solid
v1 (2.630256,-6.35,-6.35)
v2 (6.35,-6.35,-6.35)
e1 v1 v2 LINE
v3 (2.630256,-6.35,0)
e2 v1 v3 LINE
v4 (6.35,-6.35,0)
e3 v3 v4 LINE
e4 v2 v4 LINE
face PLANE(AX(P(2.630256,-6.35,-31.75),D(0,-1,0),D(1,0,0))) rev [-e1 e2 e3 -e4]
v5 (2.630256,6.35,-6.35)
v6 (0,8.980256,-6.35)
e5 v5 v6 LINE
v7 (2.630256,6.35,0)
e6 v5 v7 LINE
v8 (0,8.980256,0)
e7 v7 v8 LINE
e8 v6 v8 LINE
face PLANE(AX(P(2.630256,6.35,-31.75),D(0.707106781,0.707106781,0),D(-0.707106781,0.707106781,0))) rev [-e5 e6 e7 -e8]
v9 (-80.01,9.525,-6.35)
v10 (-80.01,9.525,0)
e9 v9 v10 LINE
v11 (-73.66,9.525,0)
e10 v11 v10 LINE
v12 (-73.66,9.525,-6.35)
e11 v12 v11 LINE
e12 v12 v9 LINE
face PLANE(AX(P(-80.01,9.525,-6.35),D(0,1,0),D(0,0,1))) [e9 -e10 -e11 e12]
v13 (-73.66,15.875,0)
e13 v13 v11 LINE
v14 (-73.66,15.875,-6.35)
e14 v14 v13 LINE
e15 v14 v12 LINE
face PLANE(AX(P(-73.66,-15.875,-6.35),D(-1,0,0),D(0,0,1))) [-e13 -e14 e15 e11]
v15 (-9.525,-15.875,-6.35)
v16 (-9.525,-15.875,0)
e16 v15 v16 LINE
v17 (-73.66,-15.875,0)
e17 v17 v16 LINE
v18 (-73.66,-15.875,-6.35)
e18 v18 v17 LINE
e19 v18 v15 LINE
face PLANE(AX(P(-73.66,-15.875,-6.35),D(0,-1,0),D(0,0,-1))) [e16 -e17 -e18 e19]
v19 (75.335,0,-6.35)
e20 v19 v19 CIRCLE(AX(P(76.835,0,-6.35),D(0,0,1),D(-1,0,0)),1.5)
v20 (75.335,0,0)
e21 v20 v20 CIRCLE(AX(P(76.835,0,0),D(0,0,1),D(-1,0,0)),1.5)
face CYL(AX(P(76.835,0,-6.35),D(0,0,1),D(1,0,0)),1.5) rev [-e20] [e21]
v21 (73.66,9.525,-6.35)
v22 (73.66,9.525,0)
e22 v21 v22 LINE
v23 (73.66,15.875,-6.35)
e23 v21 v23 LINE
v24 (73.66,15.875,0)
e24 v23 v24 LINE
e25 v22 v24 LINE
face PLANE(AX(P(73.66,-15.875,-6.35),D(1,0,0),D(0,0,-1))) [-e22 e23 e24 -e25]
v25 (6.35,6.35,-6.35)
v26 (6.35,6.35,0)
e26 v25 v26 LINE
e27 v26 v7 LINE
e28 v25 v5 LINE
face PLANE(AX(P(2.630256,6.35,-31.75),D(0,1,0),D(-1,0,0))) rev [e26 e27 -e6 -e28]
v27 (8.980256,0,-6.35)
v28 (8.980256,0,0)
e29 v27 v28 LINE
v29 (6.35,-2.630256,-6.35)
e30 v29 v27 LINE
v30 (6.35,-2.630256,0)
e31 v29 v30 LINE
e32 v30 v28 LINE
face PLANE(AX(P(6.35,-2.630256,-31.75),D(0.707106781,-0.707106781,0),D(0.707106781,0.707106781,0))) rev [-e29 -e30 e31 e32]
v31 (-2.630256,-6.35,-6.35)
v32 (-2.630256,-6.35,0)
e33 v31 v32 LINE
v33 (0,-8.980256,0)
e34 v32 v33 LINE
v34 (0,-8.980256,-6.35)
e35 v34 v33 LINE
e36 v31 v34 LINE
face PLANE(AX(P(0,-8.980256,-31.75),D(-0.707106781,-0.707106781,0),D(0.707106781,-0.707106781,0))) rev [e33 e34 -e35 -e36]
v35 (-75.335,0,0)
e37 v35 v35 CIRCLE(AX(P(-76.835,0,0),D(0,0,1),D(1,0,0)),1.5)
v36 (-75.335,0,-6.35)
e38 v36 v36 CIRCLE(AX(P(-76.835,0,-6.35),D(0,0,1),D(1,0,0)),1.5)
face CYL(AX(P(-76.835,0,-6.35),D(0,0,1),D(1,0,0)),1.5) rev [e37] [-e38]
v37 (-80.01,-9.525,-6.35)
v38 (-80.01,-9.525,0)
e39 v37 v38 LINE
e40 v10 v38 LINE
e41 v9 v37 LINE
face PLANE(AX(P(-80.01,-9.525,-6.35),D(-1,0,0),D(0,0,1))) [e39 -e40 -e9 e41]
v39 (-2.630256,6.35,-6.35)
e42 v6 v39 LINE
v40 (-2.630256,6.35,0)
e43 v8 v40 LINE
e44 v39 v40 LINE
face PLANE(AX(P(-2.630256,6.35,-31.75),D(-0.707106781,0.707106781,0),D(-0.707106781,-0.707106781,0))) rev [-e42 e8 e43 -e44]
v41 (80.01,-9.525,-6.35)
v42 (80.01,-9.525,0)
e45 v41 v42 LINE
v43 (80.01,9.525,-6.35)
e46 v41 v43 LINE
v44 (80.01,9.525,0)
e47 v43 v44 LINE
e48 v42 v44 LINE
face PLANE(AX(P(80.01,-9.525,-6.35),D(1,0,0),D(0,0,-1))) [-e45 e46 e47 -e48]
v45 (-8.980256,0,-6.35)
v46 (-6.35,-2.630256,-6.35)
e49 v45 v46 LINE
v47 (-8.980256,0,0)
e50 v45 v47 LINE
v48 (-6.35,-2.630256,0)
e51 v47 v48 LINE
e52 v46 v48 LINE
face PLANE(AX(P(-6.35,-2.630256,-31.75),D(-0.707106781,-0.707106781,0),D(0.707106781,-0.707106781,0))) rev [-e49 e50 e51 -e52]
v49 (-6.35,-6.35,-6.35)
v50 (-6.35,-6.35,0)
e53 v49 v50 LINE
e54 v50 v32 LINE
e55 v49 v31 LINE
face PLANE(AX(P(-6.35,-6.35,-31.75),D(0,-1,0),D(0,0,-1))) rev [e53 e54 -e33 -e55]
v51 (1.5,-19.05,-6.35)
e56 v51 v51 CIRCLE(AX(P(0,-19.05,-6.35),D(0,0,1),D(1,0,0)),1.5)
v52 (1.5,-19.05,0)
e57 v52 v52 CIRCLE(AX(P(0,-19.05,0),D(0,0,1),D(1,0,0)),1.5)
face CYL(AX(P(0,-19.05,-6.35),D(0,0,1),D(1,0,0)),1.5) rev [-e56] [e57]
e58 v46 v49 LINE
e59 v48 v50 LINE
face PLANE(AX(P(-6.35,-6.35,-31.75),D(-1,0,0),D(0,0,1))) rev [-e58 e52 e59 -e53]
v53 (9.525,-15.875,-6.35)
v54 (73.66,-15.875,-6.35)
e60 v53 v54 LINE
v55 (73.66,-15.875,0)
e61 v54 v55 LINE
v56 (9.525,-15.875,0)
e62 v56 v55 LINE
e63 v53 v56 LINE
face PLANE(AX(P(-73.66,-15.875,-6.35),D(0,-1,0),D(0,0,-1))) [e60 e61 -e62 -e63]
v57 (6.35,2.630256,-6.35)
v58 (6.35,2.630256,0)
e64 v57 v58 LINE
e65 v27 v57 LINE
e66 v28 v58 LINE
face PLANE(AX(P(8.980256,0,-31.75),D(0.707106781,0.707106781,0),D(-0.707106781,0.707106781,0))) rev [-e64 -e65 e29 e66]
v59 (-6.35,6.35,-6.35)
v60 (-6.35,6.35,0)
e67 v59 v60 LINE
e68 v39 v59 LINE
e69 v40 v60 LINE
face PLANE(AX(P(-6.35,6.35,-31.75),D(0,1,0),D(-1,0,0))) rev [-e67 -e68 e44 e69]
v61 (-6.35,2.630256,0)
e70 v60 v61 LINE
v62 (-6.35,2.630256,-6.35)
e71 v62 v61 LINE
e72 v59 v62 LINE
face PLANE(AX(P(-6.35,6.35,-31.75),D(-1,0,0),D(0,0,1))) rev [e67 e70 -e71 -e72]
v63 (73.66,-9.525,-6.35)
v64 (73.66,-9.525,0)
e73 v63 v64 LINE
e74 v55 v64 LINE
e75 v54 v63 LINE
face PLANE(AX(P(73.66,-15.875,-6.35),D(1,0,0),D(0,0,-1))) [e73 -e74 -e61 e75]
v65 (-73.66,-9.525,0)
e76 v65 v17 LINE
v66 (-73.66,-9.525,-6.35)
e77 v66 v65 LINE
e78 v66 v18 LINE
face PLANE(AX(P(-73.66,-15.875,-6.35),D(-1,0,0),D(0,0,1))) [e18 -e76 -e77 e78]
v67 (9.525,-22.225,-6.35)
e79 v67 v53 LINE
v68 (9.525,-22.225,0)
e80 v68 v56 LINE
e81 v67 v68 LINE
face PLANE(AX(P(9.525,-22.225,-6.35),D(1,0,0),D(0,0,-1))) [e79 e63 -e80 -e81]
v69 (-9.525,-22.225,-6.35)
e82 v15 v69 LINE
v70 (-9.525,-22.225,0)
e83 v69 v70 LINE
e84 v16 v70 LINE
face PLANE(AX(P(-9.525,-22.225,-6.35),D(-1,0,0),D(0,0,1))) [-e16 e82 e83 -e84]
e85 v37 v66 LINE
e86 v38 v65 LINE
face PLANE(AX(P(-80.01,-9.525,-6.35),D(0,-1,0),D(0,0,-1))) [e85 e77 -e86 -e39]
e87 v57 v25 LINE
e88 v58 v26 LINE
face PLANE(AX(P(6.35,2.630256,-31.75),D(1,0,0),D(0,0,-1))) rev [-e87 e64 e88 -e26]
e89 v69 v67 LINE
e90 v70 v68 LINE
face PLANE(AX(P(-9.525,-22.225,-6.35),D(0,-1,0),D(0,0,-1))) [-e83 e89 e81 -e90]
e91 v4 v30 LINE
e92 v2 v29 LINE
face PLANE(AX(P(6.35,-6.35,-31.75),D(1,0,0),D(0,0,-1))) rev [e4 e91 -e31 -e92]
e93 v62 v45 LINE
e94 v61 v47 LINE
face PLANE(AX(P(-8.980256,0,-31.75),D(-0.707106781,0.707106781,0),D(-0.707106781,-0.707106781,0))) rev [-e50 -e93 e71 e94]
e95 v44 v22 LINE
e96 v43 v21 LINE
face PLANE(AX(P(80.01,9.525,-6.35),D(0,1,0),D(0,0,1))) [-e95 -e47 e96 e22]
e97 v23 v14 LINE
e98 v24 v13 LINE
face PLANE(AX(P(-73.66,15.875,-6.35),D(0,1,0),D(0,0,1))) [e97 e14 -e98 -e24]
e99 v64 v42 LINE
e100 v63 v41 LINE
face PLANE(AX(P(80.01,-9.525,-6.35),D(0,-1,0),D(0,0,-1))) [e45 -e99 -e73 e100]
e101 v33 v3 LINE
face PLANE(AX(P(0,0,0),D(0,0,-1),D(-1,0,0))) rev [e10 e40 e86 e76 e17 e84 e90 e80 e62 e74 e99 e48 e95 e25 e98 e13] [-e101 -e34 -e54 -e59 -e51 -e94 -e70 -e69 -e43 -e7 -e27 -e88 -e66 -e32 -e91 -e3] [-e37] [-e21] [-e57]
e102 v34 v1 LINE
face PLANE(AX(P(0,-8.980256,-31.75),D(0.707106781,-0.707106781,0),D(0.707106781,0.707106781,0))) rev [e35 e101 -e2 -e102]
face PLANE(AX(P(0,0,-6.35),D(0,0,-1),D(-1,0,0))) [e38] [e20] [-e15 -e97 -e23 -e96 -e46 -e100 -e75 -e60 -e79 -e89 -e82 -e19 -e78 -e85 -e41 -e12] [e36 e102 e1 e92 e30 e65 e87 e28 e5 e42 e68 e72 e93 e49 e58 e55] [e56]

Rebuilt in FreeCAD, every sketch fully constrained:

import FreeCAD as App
import Part
import Sketcher

V = App.Vector
Q = App.Units.Quantity


def add_polygon(sketch, points):
    """Adds a closed chain of lines whose ends are joined by coincident constraints."""
    first, n = sketch.GeometryCount, len(points)
    for a, b in zip(points, points[1:] + points[:1]):
        sketch.addGeometry(Part.LineSegment(App.Vector(*a, 0), App.Vector(*b, 0)), False)
    for i in range(n):
        sketch.addConstraint(Sketcher.Constraint("Coincident", first + i, 2, first + (i + 1) % n, 1))

doc = App.newDocument("Part")
body = doc.addObject("PartDesign::Body", "Body")

# Sketch on XY plane
sketch1 = body.newObject("Sketcher::SketchObject", "Sketch")
sketch1.AttachmentSupport = (doc.getObject("XY_Plane"), [""])
sketch1.MapMode = "FlatFace"
add_polygon(sketch1, [(-73.66, 15.875), (-73.66, -15.875), (73.66, -15.875), (73.66, 15.875)])  # lines 0-3
sketch1.addConstraint(Sketcher.Constraint("Vertical", 0))
sketch1.addConstraint(Sketcher.Constraint("Horizontal", 1))
sketch1.addConstraint(Sketcher.Constraint("Vertical", 2))
sketch1.addConstraint(Sketcher.Constraint("Horizontal", 3))
sketch1.addConstraint(Sketcher.Constraint("Symmetric", 0, 2, 2, 2, -1, 1))
sketch1.addConstraint(Sketcher.Constraint("DistanceX", 1, 1, 1, 2, Q("5.8 in")))
sketch1.addConstraint(Sketcher.Constraint("DistanceY", 0, 2, 0, 1, Q("1.25 in")))
pad1 = body.newObject("PartDesign::Pad", "Pad")
pad1.Profile = sketch1
pad1.Length = Q("0.25 in")
pad1.Reversed = True

# Sketch on XY plane
sketch2 = body.newObject("Sketcher::SketchObject", "Sketch001")
sketch2.AttachmentSupport = (doc.getObject("XY_Plane"), [""])
sketch2.MapMode = "FlatFace"
add_polygon(sketch2, [(73.66, 9.525), (73.66, -9.525), (80.01, -9.525), (80.01, 9.525)])  # lines 0-3
sketch2.addGeometry(Part.Circle(V(76.835, 0, 0), V(0, 0, 1), 1.5), False)  # 4
add_polygon(sketch2, [(-80.01, 9.525), (-80.01, -9.525), (-73.66, -9.525), (-73.66, 9.525)])  # lines 5-8
sketch2.addGeometry(Part.Circle(V(-76.835, 0, 0), V(0, 0, 1), 1.5), False)  # 9
add_polygon(sketch2, [(-9.525, -15.875), (-9.525, -22.225), (9.525, -22.225), (9.525, -15.875)])  # lines 10-13
sketch2.addGeometry(Part.Circle(V(0, -19.05, 0), V(0, 0, 1), 1.5), False)  # 14
sketch2.addConstraint(Sketcher.Constraint("Vertical", 0))
sketch2.addConstraint(Sketcher.Constraint("Horizontal", 1))
sketch2.addConstraint(Sketcher.Constraint("Vertical", 2))
sketch2.addConstraint(Sketcher.Constraint("Horizontal", 3))
sketch2.addConstraint(Sketcher.Constraint("Vertical", 5))
sketch2.addConstraint(Sketcher.Constraint("Horizontal", 6))
sketch2.addConstraint(Sketcher.Constraint("Vertical", 7))
sketch2.addConstraint(Sketcher.Constraint("Horizontal", 8))
sketch2.addConstraint(Sketcher.Constraint("Vertical", 10))
sketch2.addConstraint(Sketcher.Constraint("Horizontal", 11))
sketch2.addConstraint(Sketcher.Constraint("Vertical", 12))
sketch2.addConstraint(Sketcher.Constraint("Horizontal", 13))
sketch2.addConstraint(Sketcher.Constraint("Equal", 4, 9))
sketch2.addConstraint(Sketcher.Constraint("Equal", 9, 14))
sketch2.addConstraint(Sketcher.Constraint("Symmetric", 4, 3, 9, 3, -1, 1))
sketch2.addConstraint(Sketcher.Constraint("Symmetric", 2, 2, 5, 2, -1, 1))
sketch2.addConstraint(Sketcher.Constraint("Symmetric", 0, 2, 7, 2, -1, 1))
sketch2.addConstraint(Sketcher.Constraint("PointOnObject", 4, 3, -1))
sketch2.addConstraint(Sketcher.Constraint("PointOnObject", 14, 3, -2))
sketch2.addConstraint(Sketcher.Constraint("Horizontal", 1, 2, 5, 2))
sketch2.addConstraint(Sketcher.Constraint("Equal", 13, 0))
sketch2.addConstraint(Sketcher.Constraint("Equal", 8, 10))
sketch2.addConstraint(Sketcher.Constraint("DistanceY", 12, 2, 3, 2, Q("1 in")))
sketch2.addConstraint(Sketcher.Constraint("DistanceX", 1, 1, 1, 2, Q("0.25 in")))
sketch2.addConstraint(Sketcher.Constraint("DistanceX", 11, 1, 11, 2, Q("0.75 in")))
sketch2.addConstraint(Sketcher.Constraint("DistanceX", -1, 1, 0, 2, Q("2.9 in")))
sketch2.addConstraint(Sketcher.Constraint("Diameter", 4, 3.0))
sketch2.addConstraint(Sketcher.Constraint("DistanceY", 14, 3, -1, 1, Q("0.75 in")))
sketch2.addConstraint(Sketcher.Constraint("DistanceX", 9, 3, 4, 3, Q("6.05 in")))
sketch2.addConstraint(Sketcher.Constraint("DistanceX", 9, 3, 10, 2, Q("2.65 in")))
pad2 = body.newObject("PartDesign::Pad", "Pad001")
pad2.Profile = sketch2
pad2.Length = Q("0.25 in")
pad2.Reversed = True

# Sketch on XY plane
sketch3 = body.newObject("Sketcher::SketchObject", "Sketch002")
sketch3.AttachmentSupport = (doc.getObject("XY_Plane"), [""])
sketch3.MapMode = "FlatFace"
add_polygon(sketch3, [(0, -8.980256), (2.630256, -6.35), (6.35, -6.35), (6.35, -2.630256), (8.980256, 0), (6.35, 2.630256), (6.35, 6.35), (2.630256, 6.35), (0, 8.980256), (-2.630256, 6.35), (-6.35, 6.35), (-6.35, 2.630256), (-8.980256, 0), (-6.35, -2.630256), (-6.35, -6.35), (-2.630256, -6.35)])  # lines 0-15
sketch3.addConstraint(Sketcher.Constraint("Horizontal", 1))
sketch3.addConstraint(Sketcher.Constraint("Vertical", 2))
sketch3.addConstraint(Sketcher.Constraint("Vertical", 5))
sketch3.addConstraint(Sketcher.Constraint("Horizontal", 6))
sketch3.addConstraint(Sketcher.Constraint("Horizontal", 9))
sketch3.addConstraint(Sketcher.Constraint("Vertical", 10))
sketch3.addConstraint(Sketcher.Constraint("Vertical", 13))
sketch3.addConstraint(Sketcher.Constraint("Horizontal", 14))
sketch3.addConstraint(Sketcher.Constraint("Symmetric", 0, 2, 8, 2, -1, 1))
sketch3.addConstraint(Sketcher.Constraint("Symmetric", 2, 2, 10, 2, -1, 1))
sketch3.addConstraint(Sketcher.Constraint("Symmetric", 3, 2, 11, 2, -1, 1))
sketch3.addConstraint(Sketcher.Constraint("Symmetric", 4, 2, 12, 2, -1, 1))
sketch3.addConstraint(Sketcher.Constraint("Symmetric", 6, 2, 14, 2, -1, 1))
sketch3.addConstraint(Sketcher.Constraint("Symmetric", 7, 2, 15, 2, -1, 1))
sketch3.addConstraint(Sketcher.Constraint("Symmetric", 6, 2, 8, 2, -2))
sketch3.addConstraint(Sketcher.Constraint("Symmetric", 4, 2, 10, 2, -2))
sketch3.addConstraint(Sketcher.Constraint("PointOnObject", 3, 2, -1))
sketch3.addConstraint(Sketcher.Constraint("PointOnObject", 7, 2, -2))
sketch3.addConstraint(Sketcher.Constraint("Parallel", 0, 3))
sketch3.addConstraint(Sketcher.Constraint("Perpendicular", 3, 4))
sketch3.addConstraint(Sketcher.Constraint("Equal", 14, 2))
sketch3.addConstraint(Sketcher.Constraint("Equal", 0, 3))
sketch3.addConstraint(Sketcher.Constraint("DistanceY", 1, 2, 5, 2, Q("0.5 in")))
sketch3.addConstraint(Sketcher.Constraint("DistanceX", 1, 1, 1, 2, 3.719744))
pocket1 = body.newObject("PartDesign::Pocket", "Pocket")
pocket1.Profile = sketch3
pocket1.Length = Q("0.25 in")

doc.recompute()
